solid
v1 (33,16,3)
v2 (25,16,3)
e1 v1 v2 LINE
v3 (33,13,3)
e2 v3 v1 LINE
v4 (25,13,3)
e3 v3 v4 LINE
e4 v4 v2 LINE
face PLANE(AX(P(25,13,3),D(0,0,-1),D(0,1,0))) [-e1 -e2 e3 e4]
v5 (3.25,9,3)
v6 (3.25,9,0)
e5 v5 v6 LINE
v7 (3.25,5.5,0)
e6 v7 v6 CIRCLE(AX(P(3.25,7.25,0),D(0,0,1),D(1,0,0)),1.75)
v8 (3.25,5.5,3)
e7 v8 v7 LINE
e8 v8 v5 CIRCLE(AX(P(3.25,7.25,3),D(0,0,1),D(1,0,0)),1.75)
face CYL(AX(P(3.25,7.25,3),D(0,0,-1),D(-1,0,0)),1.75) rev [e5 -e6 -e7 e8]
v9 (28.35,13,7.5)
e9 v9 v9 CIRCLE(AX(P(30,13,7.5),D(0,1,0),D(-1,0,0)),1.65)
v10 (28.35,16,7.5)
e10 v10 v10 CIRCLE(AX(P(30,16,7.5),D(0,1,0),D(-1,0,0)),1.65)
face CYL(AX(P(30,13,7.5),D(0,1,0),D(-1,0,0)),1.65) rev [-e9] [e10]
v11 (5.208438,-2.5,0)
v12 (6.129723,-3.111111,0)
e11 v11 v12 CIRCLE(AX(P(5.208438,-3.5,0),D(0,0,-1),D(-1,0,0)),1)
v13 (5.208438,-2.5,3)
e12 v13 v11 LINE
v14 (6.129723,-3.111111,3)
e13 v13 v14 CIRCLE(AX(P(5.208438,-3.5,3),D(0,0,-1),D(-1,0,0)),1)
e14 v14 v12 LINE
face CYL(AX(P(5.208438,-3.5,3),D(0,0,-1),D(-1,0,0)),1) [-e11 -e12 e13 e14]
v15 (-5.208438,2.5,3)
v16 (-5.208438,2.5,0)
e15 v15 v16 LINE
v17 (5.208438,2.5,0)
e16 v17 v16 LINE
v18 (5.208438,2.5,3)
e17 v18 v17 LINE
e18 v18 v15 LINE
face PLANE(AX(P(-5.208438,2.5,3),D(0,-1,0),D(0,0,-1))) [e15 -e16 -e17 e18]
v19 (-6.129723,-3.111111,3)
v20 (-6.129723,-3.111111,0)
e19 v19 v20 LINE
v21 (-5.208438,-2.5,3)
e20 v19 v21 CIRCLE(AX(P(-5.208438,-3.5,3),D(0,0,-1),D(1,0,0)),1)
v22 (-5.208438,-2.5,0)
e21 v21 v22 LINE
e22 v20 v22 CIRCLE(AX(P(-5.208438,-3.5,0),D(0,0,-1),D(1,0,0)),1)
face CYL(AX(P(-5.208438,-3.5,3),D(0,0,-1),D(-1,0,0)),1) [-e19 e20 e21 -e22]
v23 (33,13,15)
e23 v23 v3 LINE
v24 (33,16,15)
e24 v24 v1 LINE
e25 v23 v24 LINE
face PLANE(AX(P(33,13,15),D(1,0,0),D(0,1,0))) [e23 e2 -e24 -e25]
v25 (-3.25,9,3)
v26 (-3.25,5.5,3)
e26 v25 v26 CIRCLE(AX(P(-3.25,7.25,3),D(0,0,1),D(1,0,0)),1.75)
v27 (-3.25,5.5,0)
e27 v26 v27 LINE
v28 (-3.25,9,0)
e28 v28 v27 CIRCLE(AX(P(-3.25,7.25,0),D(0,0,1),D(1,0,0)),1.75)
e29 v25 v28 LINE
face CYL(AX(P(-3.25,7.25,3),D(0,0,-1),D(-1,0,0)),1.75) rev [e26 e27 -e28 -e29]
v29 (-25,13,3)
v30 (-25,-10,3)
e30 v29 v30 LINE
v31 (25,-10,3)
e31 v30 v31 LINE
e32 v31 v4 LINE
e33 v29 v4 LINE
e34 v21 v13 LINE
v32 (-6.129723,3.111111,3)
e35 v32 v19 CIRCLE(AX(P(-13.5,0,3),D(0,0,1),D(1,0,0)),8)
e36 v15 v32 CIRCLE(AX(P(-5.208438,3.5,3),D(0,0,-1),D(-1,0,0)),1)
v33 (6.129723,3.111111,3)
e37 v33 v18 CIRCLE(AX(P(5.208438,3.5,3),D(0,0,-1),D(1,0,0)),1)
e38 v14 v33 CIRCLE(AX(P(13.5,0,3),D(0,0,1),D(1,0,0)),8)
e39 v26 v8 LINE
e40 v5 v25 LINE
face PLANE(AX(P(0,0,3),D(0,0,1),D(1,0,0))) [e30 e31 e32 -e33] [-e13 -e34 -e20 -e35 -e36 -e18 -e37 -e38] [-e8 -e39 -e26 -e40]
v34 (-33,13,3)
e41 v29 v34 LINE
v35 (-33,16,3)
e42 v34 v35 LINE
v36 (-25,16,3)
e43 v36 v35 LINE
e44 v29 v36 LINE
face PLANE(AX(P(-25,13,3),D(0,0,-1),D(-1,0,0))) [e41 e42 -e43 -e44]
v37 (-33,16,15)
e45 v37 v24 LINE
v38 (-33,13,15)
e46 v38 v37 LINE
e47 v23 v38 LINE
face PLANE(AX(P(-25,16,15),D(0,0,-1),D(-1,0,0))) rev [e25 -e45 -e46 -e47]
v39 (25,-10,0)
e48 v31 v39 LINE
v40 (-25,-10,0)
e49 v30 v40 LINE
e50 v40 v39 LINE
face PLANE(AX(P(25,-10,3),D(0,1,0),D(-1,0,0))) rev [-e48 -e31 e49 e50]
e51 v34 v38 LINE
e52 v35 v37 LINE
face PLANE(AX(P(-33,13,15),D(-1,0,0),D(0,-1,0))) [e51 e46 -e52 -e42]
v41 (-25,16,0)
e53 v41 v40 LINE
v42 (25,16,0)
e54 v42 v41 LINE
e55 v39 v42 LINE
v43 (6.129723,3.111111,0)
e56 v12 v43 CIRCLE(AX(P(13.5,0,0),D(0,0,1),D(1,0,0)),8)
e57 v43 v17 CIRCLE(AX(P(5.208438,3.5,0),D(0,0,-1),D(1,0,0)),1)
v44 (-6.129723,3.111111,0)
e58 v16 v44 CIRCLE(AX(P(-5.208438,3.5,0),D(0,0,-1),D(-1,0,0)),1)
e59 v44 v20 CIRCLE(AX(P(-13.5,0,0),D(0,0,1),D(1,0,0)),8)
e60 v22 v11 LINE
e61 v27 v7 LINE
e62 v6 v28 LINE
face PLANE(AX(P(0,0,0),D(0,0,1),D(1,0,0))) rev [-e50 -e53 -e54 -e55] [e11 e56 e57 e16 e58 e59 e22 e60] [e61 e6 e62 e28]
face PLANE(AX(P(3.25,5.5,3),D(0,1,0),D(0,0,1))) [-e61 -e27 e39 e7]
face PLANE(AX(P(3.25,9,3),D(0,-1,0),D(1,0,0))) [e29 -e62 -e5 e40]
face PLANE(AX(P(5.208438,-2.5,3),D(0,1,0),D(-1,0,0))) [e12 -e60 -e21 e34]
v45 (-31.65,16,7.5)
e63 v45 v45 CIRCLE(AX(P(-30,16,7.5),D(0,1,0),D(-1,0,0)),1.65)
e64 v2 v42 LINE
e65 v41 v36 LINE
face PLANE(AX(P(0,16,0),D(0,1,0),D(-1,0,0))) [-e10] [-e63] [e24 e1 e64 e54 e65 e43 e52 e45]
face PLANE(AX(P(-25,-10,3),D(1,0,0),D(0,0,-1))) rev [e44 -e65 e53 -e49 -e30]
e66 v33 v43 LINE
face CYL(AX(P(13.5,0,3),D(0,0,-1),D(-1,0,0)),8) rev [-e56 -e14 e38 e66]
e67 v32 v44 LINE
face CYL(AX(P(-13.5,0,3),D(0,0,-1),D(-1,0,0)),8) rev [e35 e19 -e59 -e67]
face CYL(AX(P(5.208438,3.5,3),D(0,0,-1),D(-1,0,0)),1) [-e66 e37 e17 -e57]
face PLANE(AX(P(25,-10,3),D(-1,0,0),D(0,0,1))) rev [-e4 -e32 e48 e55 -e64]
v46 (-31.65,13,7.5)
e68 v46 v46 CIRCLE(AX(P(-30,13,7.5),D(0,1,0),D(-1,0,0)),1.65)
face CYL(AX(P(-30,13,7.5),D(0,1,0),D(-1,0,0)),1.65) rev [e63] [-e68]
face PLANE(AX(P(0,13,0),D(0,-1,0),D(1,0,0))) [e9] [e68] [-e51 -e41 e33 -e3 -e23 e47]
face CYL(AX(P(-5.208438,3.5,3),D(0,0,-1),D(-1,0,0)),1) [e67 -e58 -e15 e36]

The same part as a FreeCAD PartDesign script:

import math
import FreeCAD as App
import Part
import Sketcher
from FreeCAD import Vector
Q = App.Units.Quantity


def add_polygon(sketch, points):
    """Adds a closed chain of lines whose ends are joined by coincident constraints."""
    first, n = sketch.GeometryCount, len(points)
    for a, b in zip(points, points[1:] + points[:1]):
        sketch.addGeometry(Part.LineSegment(App.Vector(*a, 0), App.Vector(*b, 0)), False)
    for i in range(n):
        sketch.addConstraint(Sketcher.Constraint("Coincident", first + i, 2, first + (i + 1) % n, 1))

doc = App.newDocument("Part")
body = doc.addObject("PartDesign::Body", "Body")

sketch1 = body.newObject("Sketcher::SketchObject", "Sketch")
sketch1.AttachmentSupport = (doc.getObject("XY_Plane"), [""])
sketch1.MapMode = "FlatFace"
add_polygon(sketch1, [(-25, 10), (-25, -10), (25, -10), (25, 10)])
sketch1.addGeometry(Part.ArcOfCircle(Part.Circle(Vector(-5.2, 3.5, 0), Vector(0, 0, 1), 1), math.radians(-157), math.radians(-90)), False)
sketch1.addGeometry(Part.LineSegment(Vector(-5.2, 2.5, 0), Vector(5.2, 2.5, 0)), False)
sketch1.addGeometry(Part.ArcOfCircle(Part.Circle(Vector(5.2, 3.5, 0), Vector(0, 0, 1), 1), math.radians(-90), math.radians(-23)), False)
sketch1.addGeometry(Part.ArcOfCircle(Part.Circle(Vector(13.5, 0, 0), Vector(0, 0, 1), 8), math.radians(-157), math.radians(157)), False)
sketch1.addGeometry(Part.ArcOfCircle(Part.Circle(Vector(5.2, -3.5, 0), Vector(0, 0, 1), 1), math.radians(23), math.radians(90)), False)
sketch1.addGeometry(Part.LineSegment(Vector(5.2, -2.5, 0), Vector(-5.2, -2.5, 0)), False)
sketch1.addGeometry(Part.ArcOfCircle(Part.Circle(Vector(-5.2, -3.5, 0), Vector(0, 0, 1), 1), math.radians(90), math.radians(157)), False)
sketch1.addGeometry(Part.ArcOfCircle(Part.Circle(Vector(-13.5, 0, 0), Vector(0, 0, 1), 8), math.radians(23), math.radians(337)), False)
sketch1.addGeometry(Part.ArcOfCircle(Part.Circle(Vector(3.2, 7.2, 0), Vector(0, 0, 1), 1.8), math.radians(-90), math.radians(90)), False)
sketch1.addGeometry(Part.LineSegment(Vector(3.2, 5.5, 0), Vector(-3.2, 5.5, 0)), False)
sketch1.addGeometry(Part.ArcOfCircle(Part.Circle(Vector(-3.2, 7.2, 0), Vector(0, 0, 1), 1.8), math.radians(90), math.radians(270)), False)
sketch1.addGeometry(Part.LineSegment(Vector(-3.2, 9, 0), Vector(3.2, 9, 0)), False)
sketch1.addConstraint(Sketcher.Constraint("Tangent", 4, 2, 5, 1))
sketch1.addConstraint(Sketcher.Constraint("Tangent", 5, 2, 6, 1))
sketch1.addConstraint(Sketcher.Constraint("Tangent", 6, 2, 7, 2))
sketch1.addConstraint(Sketcher.Constraint("Tangent", 7, 1, 8, 1))
sketch1.addConstraint(Sketcher.Constraint("Tangent", 8, 2, 9, 1))
sketch1.addConstraint(Sketcher.Constraint("Tangent", 9, 2, 10, 1))
sketch1.addConstraint(Sketcher.Constraint("Tangent", 10, 2, 11, 2))
sketch1.addConstraint(Sketcher.Constraint("Tangent", 11, 1, 4, 1))
sketch1.addConstraint(Sketcher.Constraint("Tangent", 12, 1, 13, 1))
sketch1.addConstraint(Sketcher.Constraint("Tangent", 13, 2, 14, 2))
sketch1.addConstraint(Sketcher.Constraint("Tangent", 14, 1, 15, 1))
sketch1.addConstraint(Sketcher.Constraint("Tangent", 15, 2, 12, 2))
sketch1.addConstraint(Sketcher.Constraint("Vertical", 0))
sketch1.addConstraint(Sketcher.Constraint("Horizontal", 1))
sketch1.addConstraint(Sketcher.Constraint("Vertical", 2))
sketch1.addConstraint(Sketcher.Constraint("Horizontal", 3))
sketch1.addConstraint(Sketcher.Constraint("Horizontal", 5))
sketch1.addConstraint(Sketcher.Constraint("Horizontal", 9))
sketch1.addConstraint(Sketcher.Constraint("Horizontal", 13))
sketch1.addConstraint(Sketcher.Constraint("Horizontal", 15))
sketch1.addConstraint(Sketcher.Constraint("Equal", 4, 6))
sketch1.addConstraint(Sketcher.Constraint("Equal", 6, 8))
sketch1.addConstraint(Sketcher.Constraint("Equal", 8, 10))
sketch1.addConstraint(Sketcher.Constraint("Equal", 7, 11))
sketch1.addConstraint(Sketcher.Constraint("Symmetric", 4, 3, 8, 3, -1, 1))
sketch1.addConstraint(Sketcher.Constraint("Symmetric", 0, 2, 2, 2, -1, 1))
sketch1.addConstraint(Sketcher.Constraint("Symmetric", 7, 3, 11, 3, -2))
sketch1.addConstraint(Sketcher.Constraint("Radius", 4, Q("1 mm")))
sketch1.addConstraint(Sketcher.Constraint("Radius", 7, Q("8 mm")))
sketch1.addConstraint(Sketcher.Constraint("DistanceX", 1, 1, 1, 2, Q("50 mm")))
sketch1.addConstraint(Sketcher.Constraint("DistanceY", 0, 2, 0, 1, Q("20 mm")))
sketch1.addConstraint(Sketcher.Constraint("Radius", 12, Q("1.75 mm")))
sketch1.addConstraint(Sketcher.Constraint("DistanceX", 13, 2, 13, 1, Q("6.5 mm")))
sketch1.addConstraint(Sketcher.Constraint("DistanceY", -1, 1, 14, 1, Q("9 mm")))
sketch1.addConstraint(Sketcher.Constraint("DistanceY", 8, 3, 6, 3, Q("7 mm")))
sketch1.addConstraint(Sketcher.Constraint("DistanceX", 11, 3, 7, 3, Q("27 mm")))
sketch1.addConstraint(Sketcher.Constraint("DistanceX", -1, 1, 12, 3, Q("3.25 mm")))
pad1 = body.newObject("PartDesign::Pad", "Pad")
pad1.Profile = sketch1
pad1.Length = 3

sketch2 = body.newObject("Sketcher::SketchObject", "Sketch001")
sketch2.AttachmentSupport = (doc.getObject("XZ_Plane"), [""])
sketch2.MapMode = "FlatFace"
sketch2.AttachmentOffset = App.Placement(Vector(0, 0, -10), App.Rotation())
add_polygon(sketch2, [(-25, 0), (-25, 15), (25, 15), (25, 0)])
sketch2.addConstraint(Sketcher.Constraint("Vertical", 0))
sketch2.addConstraint(Sketcher.Constraint("Horizontal", 1))
sketch2.addConstraint(Sketcher.Constraint("Vertical", 2))
sketch2.addConstraint(Sketcher.Constraint("Horizontal", 3))
sketch2.addConstraint(Sketcher.Constraint("Symmetric", 2, 2, 3, 2, -1, 1))
sketch2.addConstraint(Sketcher.Constraint("DistanceX", 1, 1, 1, 2, Q("50 mm")))
sketch2.addConstraint(Sketcher.Constraint("DistanceY", 0, 1, 0, 2, Q("15 mm")))
pad2 = body.newObject("PartDesign::Pad", "Pad001")
pad2.Profile = sketch2
pad2.Length = 6
pad2.Reversed = True

sketch3 = body.newObject("Sketcher::SketchObject", "Sketch002")
sketch3.AttachmentSupport = (doc.getObject("XZ_Plane"), [""])
sketch3.MapMode = "FlatFace"
sketch3.AttachmentOffset = App.Placement(Vector(0, 0, -10), App.Rotation())
add_polygon(sketch3, [(-25, 15), (-25, 3), (25, 3), (25, 15)])
sketch3.addConstraint(Sketcher.Constraint("Vertical", 0))
sketch3.addConstraint(Sketcher.Constraint("Horizontal", 1))
sketch3.addConstraint(Sketcher.Constraint("Vertical", 2))
sketch3.addConstraint(Sketcher.Constraint("Horizontal", 3))
sketch3.addConstraint(Sketcher.Constraint("DistanceX", 1, 1, 1, 2, Q("50 mm")))
sketch3.addConstraint(Sketcher.Constraint("DistanceY", 0, 2, 0, 1, Q("12 mm")))
sketch3.addConstraint(Sketcher.Constraint("DistanceX", 0, 2, -1, 1, Q("25 mm")))
sketch3.addConstraint(Sketcher.Constraint("DistanceY", -1, 1, 0, 2, Q("3 mm")))
pocket1 = body.newObject("PartDesign::Pocket", "Pocket")
pocket1.Profile = sketch3
pocket1.Length = 3

sketch4 = body.newObject("Sketcher::SketchObject", "Sketch003")
sketch4.AttachmentSupport = (doc.getObject("XZ_Plane"), [""])
sketch4.MapMode = "FlatFace"
sketch4.AttachmentOffset = App.Placement(Vector(0, 0, -16), App.Rotation())
add_polygon(sketch4, [(25, 3), (25, 15), (33, 15), (33, 3)])
sketch4.addGeometry(Part.Circle(Vector(30, 7.5, 0), Vector(0, 0, 1), 1.6), False)
add_polygon(sketch4, [(-33, 3), (-33, 15), (-25, 15), (-25, 3)])
sketch4.addGeometry(Part.Circle(Vector(-30, 7.5, 0), Vector(0, 0, 1), 1.6), False)
sketch4.addConstraint(Sketcher.Constraint("Vertical", 0))
sketch4.addConstraint(Sketcher.Constraint("Horizontal", 1))
sketch4.addConstraint(Sketcher.Constraint("Vertical", 2))
sketch4.addConstraint(Sketcher.Constraint("Horizontal", 3))
sketch4.addConstraint(Sketcher.Constraint("Vertical", 5))
sketch4.addConstraint(Sketcher.Constraint("Horizontal", 6))
sketch4.addConstraint(Sketcher.Constraint("Vertical", 7))
sketch4.addConstraint(Sketcher.Constraint("Horizontal", 8))
sketch4.addConstraint(Sketcher.Constraint("Equal", 4, 9))
sketch4.addConstraint(Sketcher.Constraint("Symmetric", 4, 3, 9, 3, -2))
sketch4.addConstraint(Sketcher.Constraint("Symmetric", 1, 2, 5, 2, -2))
sketch4.addConstraint(Sketcher.Constraint("Symmetric", 3, 2, 7, 2, -2))
sketch4.addConstraint(Sketcher.Constraint("Diameter", 4, Q("3.3 mm")))
sketch4.addConstraint(Sketcher.Constraint("DistanceX", 1, 1, 1, 2, Q("8 mm")))
sketch4.addConstraint(Sketcher.Constraint("DistanceY", 0, 1, 0, 2, Q("12 mm")))
sketch4.addConstraint(Sketcher.Constraint("DistanceX", -1, 1, 4, 3, Q("30 mm")))
sketch4.addConstraint(Sketcher.Constraint("DistanceX", -1, 1, 0, 2, Q("25 mm")))
sketch4.addConstraint(Sketcher.Constraint("DistanceY", -1, 1, 0, 2, Q("15 mm")))
sketch4.addConstraint(Sketcher.Constraint("DistanceY", -1, 1, 4, 3, Q("7.5 mm")))
pad3 = body.newObject("PartDesign::Pad", "Pad002")
pad3.Profile = sketch4
pad3.Length = 3

doc.recompute()
